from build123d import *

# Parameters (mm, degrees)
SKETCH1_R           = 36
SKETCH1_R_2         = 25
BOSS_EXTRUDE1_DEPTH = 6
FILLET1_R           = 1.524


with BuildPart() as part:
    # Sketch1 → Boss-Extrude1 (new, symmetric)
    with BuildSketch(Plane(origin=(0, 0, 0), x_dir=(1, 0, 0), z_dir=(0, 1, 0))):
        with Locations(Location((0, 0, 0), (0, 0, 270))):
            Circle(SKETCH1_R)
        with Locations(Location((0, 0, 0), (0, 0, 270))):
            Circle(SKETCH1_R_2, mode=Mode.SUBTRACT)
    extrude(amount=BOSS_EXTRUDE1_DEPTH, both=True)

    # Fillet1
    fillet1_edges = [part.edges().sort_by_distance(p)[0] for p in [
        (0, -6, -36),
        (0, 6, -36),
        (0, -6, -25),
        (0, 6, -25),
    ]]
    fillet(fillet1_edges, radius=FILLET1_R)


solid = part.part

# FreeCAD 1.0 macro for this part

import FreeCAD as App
import Part
import Sketcher


def edges_at(feature, points):
    """Names of the edges that pass closest to the given points."""
    edges = feature.Shape.Edges
    near = lambda p: min(range(len(edges)), key=lambda i: edges[i].distToShape(Part.Vertex(*p))[0])
    return sorted({f"Edge{near(p) + 1}" for p in points})

doc = App.newDocument("Part")
params = doc.addObject("Spreadsheet::Sheet", "Params")
for row, (alias, value) in enumerate([
    ("sketch1_diameter", "72 mm"),
    ("sketch1_diameter2", "50 mm"),
    ("pad1_length", "12 mm"),
    ("fillet_radius", "1.524 mm"),
], start=1):
    params.set(f"A{row}", alias)
    params.set(f"B{row}", "=" + value)
    params.setAlias(f"B{row}", alias)

body = doc.addObject("PartDesign::Body", "Body")

# Sketch on XZ plane
sketch1 = body.newObject("Sketcher::SketchObject", "Sketch")
sketch1.AttachmentSupport = (doc.getObject("XZ_Plane"), [""])
sketch1.MapMode = "FlatFace"
sketch1.addGeometry([
    Part.Circle(App.Vector(0, 0, 0), App.Vector(0, 0, 1), 36),
    Part.Circle(App.Vector(0, 0, 0), App.Vector(0, 0, 1), 25),
], False)
sketch1.addConstraint([
    Sketcher.Constraint("Coincident", 0, 3, -1, 1),
    Sketcher.Constraint("Coincident", 1, 3, -1, 1),
    Sketcher.Constraint("Diameter", 0, 72.0),
    Sketcher.Constraint("Diameter", 1, 50.0),
])
sketch1.setExpression("Constraints[2]", "Params.sketch1_diameter")
sketch1.setExpression("Constraints[3]", "Params.sketch1_diameter2")
pad1 = body.newObject("PartDesign::Pad", "Pad")
pad1.Profile = sketch1
pad1.setExpression("Length", "Params.pad1_length")
pad1.Midplane = True
doc.recompute()

fillet = body.newObject("PartDesign::Fillet", "Fillet")
fillet.Base = (pad1, edges_at(pad1, [
    (0, -6, -36),
    (0, 6, -36),
    (0, -6, -25),
    (0, 6, -25),
]))
fillet.setExpression("Radius", "Params.fillet_radius")

doc.recompute()
